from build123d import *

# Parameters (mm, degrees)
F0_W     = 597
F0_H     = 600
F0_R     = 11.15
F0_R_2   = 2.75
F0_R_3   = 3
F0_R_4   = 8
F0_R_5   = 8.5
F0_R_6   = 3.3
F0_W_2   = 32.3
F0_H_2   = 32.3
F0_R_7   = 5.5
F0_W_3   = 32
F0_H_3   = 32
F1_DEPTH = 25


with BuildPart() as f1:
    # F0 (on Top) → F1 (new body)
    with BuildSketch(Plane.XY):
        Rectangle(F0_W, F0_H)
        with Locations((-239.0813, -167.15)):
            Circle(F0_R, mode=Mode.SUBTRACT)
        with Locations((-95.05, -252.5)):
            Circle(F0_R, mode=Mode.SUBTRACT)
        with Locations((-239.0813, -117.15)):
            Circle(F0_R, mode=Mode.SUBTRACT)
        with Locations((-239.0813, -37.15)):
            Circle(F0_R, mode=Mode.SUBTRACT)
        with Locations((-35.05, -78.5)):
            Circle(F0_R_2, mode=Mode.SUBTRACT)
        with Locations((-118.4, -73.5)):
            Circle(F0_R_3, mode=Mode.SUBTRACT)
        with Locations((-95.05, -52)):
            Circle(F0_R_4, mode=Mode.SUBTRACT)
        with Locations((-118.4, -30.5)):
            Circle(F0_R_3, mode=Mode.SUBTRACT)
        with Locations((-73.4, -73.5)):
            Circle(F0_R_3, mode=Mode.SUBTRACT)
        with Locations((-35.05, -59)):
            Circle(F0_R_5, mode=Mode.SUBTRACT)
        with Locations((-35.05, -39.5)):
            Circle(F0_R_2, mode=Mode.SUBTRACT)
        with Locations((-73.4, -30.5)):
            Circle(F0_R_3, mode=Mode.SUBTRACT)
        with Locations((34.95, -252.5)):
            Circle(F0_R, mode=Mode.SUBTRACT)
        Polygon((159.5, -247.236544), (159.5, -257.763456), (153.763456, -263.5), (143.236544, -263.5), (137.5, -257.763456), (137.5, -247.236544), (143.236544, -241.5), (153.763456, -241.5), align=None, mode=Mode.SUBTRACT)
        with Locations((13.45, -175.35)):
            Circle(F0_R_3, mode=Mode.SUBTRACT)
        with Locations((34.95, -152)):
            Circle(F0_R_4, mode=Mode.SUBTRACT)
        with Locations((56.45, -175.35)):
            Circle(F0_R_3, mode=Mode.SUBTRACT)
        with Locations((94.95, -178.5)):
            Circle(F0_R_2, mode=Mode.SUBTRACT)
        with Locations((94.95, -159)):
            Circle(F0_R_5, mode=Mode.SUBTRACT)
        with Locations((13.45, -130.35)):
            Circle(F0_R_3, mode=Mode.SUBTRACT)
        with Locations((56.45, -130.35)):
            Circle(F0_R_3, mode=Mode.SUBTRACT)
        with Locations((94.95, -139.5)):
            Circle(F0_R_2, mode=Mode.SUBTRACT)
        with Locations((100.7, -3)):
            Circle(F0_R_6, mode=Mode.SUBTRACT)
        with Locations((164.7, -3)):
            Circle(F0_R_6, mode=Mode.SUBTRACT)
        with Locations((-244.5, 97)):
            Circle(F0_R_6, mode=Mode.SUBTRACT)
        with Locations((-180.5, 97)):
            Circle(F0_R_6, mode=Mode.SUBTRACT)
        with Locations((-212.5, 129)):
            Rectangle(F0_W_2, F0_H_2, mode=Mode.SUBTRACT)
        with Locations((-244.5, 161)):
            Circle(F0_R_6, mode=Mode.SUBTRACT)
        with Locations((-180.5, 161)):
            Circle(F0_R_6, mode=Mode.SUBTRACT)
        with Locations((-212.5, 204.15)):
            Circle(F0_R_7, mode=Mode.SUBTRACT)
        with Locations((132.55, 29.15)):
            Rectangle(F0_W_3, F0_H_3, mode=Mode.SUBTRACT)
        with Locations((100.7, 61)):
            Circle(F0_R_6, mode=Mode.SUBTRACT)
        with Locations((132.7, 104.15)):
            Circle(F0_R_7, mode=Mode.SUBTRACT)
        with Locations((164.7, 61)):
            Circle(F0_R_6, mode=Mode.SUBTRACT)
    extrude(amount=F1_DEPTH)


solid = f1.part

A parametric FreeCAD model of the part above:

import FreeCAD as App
import Part
import Sketcher
Q = App.Units.Quantity


def add_polygon(sketch, points):
    """Adds a closed chain of lines whose ends are joined by coincident constraints."""
    first, n = sketch.GeometryCount, len(points)
    for a, b in zip(points, points[1:] + points[:1]):
        sketch.addGeometry(Part.LineSegment(App.Vector(*a, 0), App.Vector(*b, 0)), False)
    for i in range(n):
        sketch.addConstraint(Sketcher.Constraint("Coincident", first + i, 2, first + (i + 1) % n, 1))

doc = App.newDocument("Part")
body = doc.addObject("PartDesign::Body", "Body")

# Sketch on XY plane
sketch1 = doc.addObject("Sketcher::SketchObject", "Sketch")
body.addObject(sketch1)
sketch1.AttachmentSupport = (doc.XY_Plane, [""])
sketch1.MapMode = "FlatFace"
add_polygon(sketch1, [(-298.5, 300), (-298.5, -300), (298.5, -300), (298.5, 300)])  # lines 0-3
sketch1.addGeometry(Part.Circle(App.Vector(-239.1, -167.2, 0), App.Vector(0, 0, 1), 11.2), False)  # 4
sketch1.addGeometry(Part.Circle(App.Vector(-95, -252.5, 0), App.Vector(0, 0, 1), 11.2), False)  # 5
sketch1.addGeometry(Part.Circle(App.Vector(-239.1, -117.2, 0), App.Vector(0, 0, 1), 11.2), False)  # 6
sketch1.addGeometry(Part.Circle(App.Vector(-239.1, -37.1, 0), App.Vector(0, 0, 1), 11.2), False)  # 7
sketch1.addGeometry(Part.Circle(App.Vector(-118.4, -73.5, 0), App.Vector(0, 0, 1), 3), False)  # 8
sketch1.addGeometry(Part.Circle(App.Vector(-95, -52, 0), App.Vector(0, 0, 1), 8), False)  # 9
sketch1.addGeometry(Part.Circle(App.Vector(-118.4, -30.5, 0), App.Vector(0, 0, 1), 3), False)  # 10
sketch1.addGeometry(Part.Circle(App.Vector(-73.4, -73.5, 0), App.Vector(0, 0, 1), 3), False)  # 11
sketch1.addGeometry(Part.Circle(App.Vector(-73.4, -30.5, 0), App.Vector(0, 0, 1), 3), False)  # 12
sketch1.addGeometry(Part.Circle(App.Vector(35, -252.5, 0), App.Vector(0, 0, 1), 11.2), False)  # 13
sketch1.addGeometry(Part.Circle(App.Vector(13.4, -175.3, 0), App.Vector(0, 0, 1), 3), False)  # 14
sketch1.addGeometry(Part.Circle(App.Vector(56.5, -175.3, 0), App.Vector(0, 0, 1), 3), False)  # 15
sketch1.addGeometry(Part.Circle(App.Vector(35, -152, 0), App.Vector(0, 0, 1), 8), False)  # 16
add_polygon(sketch1, [(153.8, -241.5), (159.5, -247.2), (159.5, -257.8), (153.8, -263.5), (143.2, -263.5), (137.5, -257.8), (137.5, -247.2), (143.2, -241.5)])  # lines 17-24
sketch1.addGeometry(Part.Circle(App.Vector(95, -178.5, 0), App.Vector(0, 0, 1), 2.8), False)  # 25
sketch1.addGeometry(Part.Circle(App.Vector(95, -159, 0), App.Vector(0, 0, 1), 8.5), False)  # 26
sketch1.addGeometry(Part.Circle(App.Vector(13.4, -130.3, 0), App.Vector(0, 0, 1), 3), False)  # 27
sketch1.addGeometry(Part.Circle(App.Vector(56.5, -130.3, 0), App.Vector(0, 0, 1), 3), False)  # 28
sketch1.addGeometry(Part.Circle(App.Vector(-35, -78.5, 0), App.Vector(0, 0, 1), 2.8), False)  # 29
sketch1.addGeometry(Part.Circle(App.Vector(-35, -59, 0), App.Vector(0, 0, 1), 8.5), False)  # 30
sketch1.addGeometry(Part.Circle(App.Vector(-35, -39.5, 0), App.Vector(0, 0, 1), 2.8), False)  # 31
sketch1.addGeometry(Part.Circle(App.Vector(95, -139.5, 0), App.Vector(0, 0, 1), 2.8), False)  # 32
sketch1.addGeometry(Part.Circle(App.Vector(-244.5, 97, 0), App.Vector(0, 0, 1), 3.3), False)  # 33
add_polygon(sketch1, [(-196.3, 112.8), (-228.7, 112.8), (-228.7, 145.2), (-196.3, 145.2)])  # lines 34-37
sketch1.addGeometry(Part.Circle(App.Vector(-180.5, 97, 0), App.Vector(0, 0, 1), 3.3), False)  # 38
sketch1.addGeometry(Part.Circle(App.Vector(-244.5, 161, 0), App.Vector(0, 0, 1), 3.3), False)  # 39
sketch1.addGeometry(Part.Circle(App.Vector(-212.5, 204.2, 0), App.Vector(0, 0, 1), 5.5), False)  # 40
sketch1.addGeometry(Part.Circle(App.Vector(-180.5, 161, 0), App.Vector(0, 0, 1), 3.3), False)  # 41
sketch1.addGeometry(Part.Circle(App.Vector(100.7, -3, 0), App.Vector(0, 0, 1), 3.3), False)  # 42
sketch1.addGeometry(Part.Circle(App.Vector(164.7, -3, 0), App.Vector(0, 0, 1), 3.3), False)  # 43
add_polygon(sketch1, [(148.6, 13.2), (116.5, 13.2), (116.5, 45.1), (148.6, 45.1)])  # lines 44-47
sketch1.addGeometry(Part.Circle(App.Vector(100.7, 61, 0), App.Vector(0, 0, 1), 3.3), False)  # 48
sketch1.addGeometry(Part.Circle(App.Vector(164.7, 61, 0), App.Vector(0, 0, 1), 3.3), False)  # 49
sketch1.addGeometry(Part.Circle(App.Vector(132.7, 104.2, 0), App.Vector(0, 0, 1), 5.5), False)  # 50
sketch1.addConstraint([
    Sketcher.Constraint("Vertical", 0),
    Sketcher.Constraint("Horizontal", 1),
    Sketcher.Constraint("Vertical", 2),
    Sketcher.Constraint("Horizontal", 3),
    Sketcher.Constraint("Vertical", 18),
    Sketcher.Constraint("Horizontal", 20),
    Sketcher.Constraint("Vertical", 22),
    Sketcher.Constraint("Horizontal", 24),
    Sketcher.Constraint("Horizontal", 34),
    Sketcher.Constraint("Vertical", 35),
    Sketcher.Constraint("Horizontal", 36),
    Sketcher.Constraint("Vertical", 37),
    Sketcher.Constraint("Horizontal", 44),
    Sketcher.Constraint("Vertical", 45),
    Sketcher.Constraint("Horizontal", 46),
    Sketcher.Constraint("Vertical", 47),
    Sketcher.Constraint("Equal", 4, 5),
    Sketcher.Constraint("Equal", 5, 6),
    Sketcher.Constraint("Equal", 6, 7),
    Sketcher.Constraint("Equal", 8, 10),
    Sketcher.Constraint("Equal", 10, 11),
    Sketcher.Constraint("Equal", 11, 12),
    Sketcher.Constraint("Equal", 7, 13),
    Sketcher.Constraint("Equal", 12, 14),
    Sketcher.Constraint("Equal", 14, 15),
    Sketcher.Constraint("Equal", 9, 16),
    Sketcher.Constraint("Equal", 15, 27),
    Sketcher.Constraint("Equal", 27, 28),
    Sketcher.Constraint("Equal", 25, 29),
    Sketcher.Constraint("Equal", 26, 30),
    Sketcher.Constraint("Equal", 29, 31),
    Sketcher.Constraint("Equal", 31, 32),
    Sketcher.Constraint("Equal", 33, 38),
    Sketcher.Constraint("Equal", 38, 39),
    Sketcher.Constraint("Equal", 39, 41),
    Sketcher.Constraint("Equal", 41, 42),
    Sketcher.Constraint("Equal", 42, 43),
    Sketcher.Constraint("Equal", 43, 48),
    Sketcher.Constraint("Equal", 48, 49),
    Sketcher.Constraint("Equal", 40, 50),
    Sketcher.Constraint("Symmetric", 0, 2, 2, 2, -1, 1),
    Sketcher.Constraint("Perpendicular", 17, 19),
    Sketcher.Constraint("Perpendicular", 19, 21),
    Sketcher.Constraint("Perpendicular", 21, 23),
    Sketcher.Constraint("Horizontal", 8, 3, 11, 3),
    Sketcher.Constraint("Horizontal", 10, 3, 12, 3),
    Sketcher.Constraint("Horizontal", 5, 3, 13, 3),
    Sketcher.Constraint("Horizontal", 14, 3, 15, 3),
    Sketcher.Constraint("Horizontal", 27, 3, 28, 3),
    Sketcher.Constraint("Horizontal", 33, 3, 38, 3),
    Sketcher.Constraint("Horizontal", 39, 3, 41, 3),
    Sketcher.Constraint("Horizontal", 42, 3, 43, 3),
    Sketcher.Constraint("Horizontal", 48, 3, 49, 3),
    Sketcher.Constraint("Horizontal", 18, 2, 21, 2),
    Sketcher.Constraint("Horizontal", 17, 2, 22, 2),
    Sketcher.Constraint("Vertical", 4, 3, 6, 3),
    Sketcher.Constraint("Vertical", 6, 3, 7, 3),
    Sketcher.Constraint("Vertical", 5, 3, 9, 3),
    Sketcher.Constraint("Vertical", 8, 3, 10, 3),
    Sketcher.Constraint("Vertical", 11, 3, 12, 3),
    Sketcher.Constraint("Vertical", 13, 3, 16, 3),
    Sketcher.Constraint("Vertical", 25, 3, 26, 3),
    Sketcher.Constraint("Vertical", 14, 3, 27, 3),
    Sketcher.Constraint("Vertical", 15, 3, 28, 3),
    Sketcher.Constraint("Vertical", 29, 3, 30, 3),
    Sketcher.Constraint("Vertical", 30, 3, 31, 3),
    Sketcher.Constraint("Vertical", 26, 3, 32, 3),
    Sketcher.Constraint("Vertical", 33, 3, 39, 3),
    Sketcher.Constraint("Vertical", 38, 3, 41, 3),
    Sketcher.Constraint("Vertical", 42, 3, 48, 3),
    Sketcher.Constraint("Vertical", 43, 3, 49, 3),
    Sketcher.Constraint("Vertical", 20, 2, 23, 2),
    Sketcher.Constraint("Vertical", 19, 2, 24, 2),
    Sketcher.Constraint("Equal", 24, 18),
    Sketcher.Constraint("Equal", 36, 35),
    Sketcher.Constraint("Equal", 46, 45),
    Sketcher.Constraint("Diameter", 8, Q("6 mm")),
    Sketcher.Constraint("Diameter", 9, Q("16 mm")),
    Sketcher.Constraint("Diameter", 26, Q("17 mm")),
    Sketcher.Constraint("Diameter", 40, Q("11 mm")),
    Sketcher.Constraint("Diameter", 4, Q("22.3 mm")),
    Sketcher.Constraint("Diameter", 25, Q("5.5 mm")),
    Sketcher.Constraint("Diameter", 33, Q("6.6 mm")),
    Sketcher.Constraint("DistanceX", 1, 1, 1, 2, Q("597 mm")),
    Sketcher.Constraint("DistanceX", 44, 2, 44, 1, Q("32 mm")),
    Sketcher.Constraint("DistanceY", 0, 2, 0, 1, Q("600 mm")),
    Sketcher.Constraint("DistanceX", 34, 2, 34, 1, Q("32.3 mm")),
    Sketcher.Constraint("DistanceY", 9, 3, -1, 1, Q("52 mm")),
    Sketcher.Constraint("DistanceY", 16, 3, -1, 1, Q("152 mm")),
    Sketcher.Constraint("DistanceY", 26, 3, -1, 1, Q("159 mm")),
    Sketcher.Constraint("DistanceY", 30, 3, -1, 1, Q("59 mm")),
    Sketcher.Constraint("DistanceY", -1, 1, 33, 3, Q("97 mm")),
    Sketcher.Constraint("DistanceY", -1, 1, 39, 3, Q("161 mm")),
    Sketcher.Constraint("DistanceY", 42, 3, -1, 1, Q("3 mm")),
    Sketcher.Constraint("DistanceY", -1, 1, 48, 3, Q("61 mm")),
    Sketcher.Constraint("DistanceY", 4, 3, 6, 3, Q("50 mm")),
    Sketcher.Constraint("DistanceY", 6, 3, 7, 3, Q("80 mm")),
    Sketcher.Constraint("DistanceY", 5, 3, 8, 3, Q("179 mm")),
    Sketcher.Constraint("DistanceY", 8, 3, 10, 3, Q("43 mm")),
    Sketcher.Constraint("DistanceX", 8, 3, 11, 3, Q("45 mm")),
    Sketcher.Constraint("DistanceX", 5, 3, 13, 3, Q("130 mm")),
    Sketcher.Constraint("DistanceX", 14, 3, 15, 3, Q("43 mm")),
    Sketcher.Constraint("DistanceX", 16, 3, 25, 3, Q("60 mm")),
    Sketcher.Constraint("DistanceY", 13, 3, 25, 3, Q("74 mm")),
    Sketcher.Constraint("DistanceY", 14, 3, 27, 3, Q("45 mm")),
    Sketcher.Constraint("DistanceY", 29, 3, 11, 3, Q("5 mm")),
    Sketcher.Constraint("DistanceX", 9, 3, 29, 3, Q("60 mm")),
    Sketcher.Constraint("DistanceY", 29, 3, 31, 3, Q("39 mm")),
    Sketcher.Constraint("DistanceY", 25, 3, 32, 3, Q("39 mm")),
    Sketcher.Constraint("DistanceX", 33, 3, 38, 3, Q("64 mm")),
    Sketcher.Constraint("DistanceX", 39, 3, 40, 3, Q("32 mm")),
    Sketcher.Constraint("DistanceX", 42, 3, 43, 3, Q("64 mm")),
    Sketcher.Constraint("DistanceX", 48, 3, 50, 3, Q("32 mm")),
    Sketcher.Constraint("DistanceX", 3, 2, 40, 3, Q("86 mm")),
    Sketcher.Constraint("DistanceY", 19, 2, 25, 3, Q("85 mm")),
    Sketcher.Constraint("DistanceX", 21, 2, 18, 2, Q("22 mm")),
    Sketcher.Constraint("DistanceY", 35, 2, 40, 3, Q("59 mm")),
    Sketcher.Constraint("DistanceY", 44, 2, 50, 3, Q("91 mm")),
    Sketcher.Constraint("DistanceY", 5, 3, -1, 1, Q("252.5 mm")),
    Sketcher.Constraint("DistanceX", 8, 3, -1, 1, Q("118.4 mm")),
    Sketcher.Constraint("DistanceX", -1, 1, 42, 3, Q("100.7 mm")),
    Sketcher.Constraint("DistanceX", -1, 1, 17, 2, Q("159.5 mm")),
    Sketcher.Constraint("DistanceX", 14, 3, 13, 3, Q("21.5 mm")),
    Sketcher.Constraint("DistanceY", 7, 3, 40, 3, Q("241.3 mm")),
    Sketcher.Constraint("DistanceY", 4, 3, -1, 1, Q("167.15 mm")),
    Sketcher.Constraint("DistanceX", 5, 3, -1, 1, Q("95.05 mm")),
    Sketcher.Constraint("DistanceY", 14, 3, -1, 1, Q("175.35 mm")),
    Sketcher.Constraint("DistanceY", -1, 1, 50, 3, Q("104.15 mm")),
    Sketcher.Constraint("DistanceX", 34, 2, -1, 1, Q("228.65 mm")),
    Sketcher.Constraint("DistanceX", -1, 1, 44, 2, Q("116.55 mm")),
    Sketcher.Constraint("Distance", 17, Q("8.112698 mm")),
    Sketcher.Constraint("DistanceX", 4, 3, -1, 1, Q("239.0813 mm")),
])
pad1 = doc.addObject("PartDesign::Pad", "Pad")
body.addObject(pad1)
pad1.Profile = sketch1
pad1.Length = 25

doc.recompute()
